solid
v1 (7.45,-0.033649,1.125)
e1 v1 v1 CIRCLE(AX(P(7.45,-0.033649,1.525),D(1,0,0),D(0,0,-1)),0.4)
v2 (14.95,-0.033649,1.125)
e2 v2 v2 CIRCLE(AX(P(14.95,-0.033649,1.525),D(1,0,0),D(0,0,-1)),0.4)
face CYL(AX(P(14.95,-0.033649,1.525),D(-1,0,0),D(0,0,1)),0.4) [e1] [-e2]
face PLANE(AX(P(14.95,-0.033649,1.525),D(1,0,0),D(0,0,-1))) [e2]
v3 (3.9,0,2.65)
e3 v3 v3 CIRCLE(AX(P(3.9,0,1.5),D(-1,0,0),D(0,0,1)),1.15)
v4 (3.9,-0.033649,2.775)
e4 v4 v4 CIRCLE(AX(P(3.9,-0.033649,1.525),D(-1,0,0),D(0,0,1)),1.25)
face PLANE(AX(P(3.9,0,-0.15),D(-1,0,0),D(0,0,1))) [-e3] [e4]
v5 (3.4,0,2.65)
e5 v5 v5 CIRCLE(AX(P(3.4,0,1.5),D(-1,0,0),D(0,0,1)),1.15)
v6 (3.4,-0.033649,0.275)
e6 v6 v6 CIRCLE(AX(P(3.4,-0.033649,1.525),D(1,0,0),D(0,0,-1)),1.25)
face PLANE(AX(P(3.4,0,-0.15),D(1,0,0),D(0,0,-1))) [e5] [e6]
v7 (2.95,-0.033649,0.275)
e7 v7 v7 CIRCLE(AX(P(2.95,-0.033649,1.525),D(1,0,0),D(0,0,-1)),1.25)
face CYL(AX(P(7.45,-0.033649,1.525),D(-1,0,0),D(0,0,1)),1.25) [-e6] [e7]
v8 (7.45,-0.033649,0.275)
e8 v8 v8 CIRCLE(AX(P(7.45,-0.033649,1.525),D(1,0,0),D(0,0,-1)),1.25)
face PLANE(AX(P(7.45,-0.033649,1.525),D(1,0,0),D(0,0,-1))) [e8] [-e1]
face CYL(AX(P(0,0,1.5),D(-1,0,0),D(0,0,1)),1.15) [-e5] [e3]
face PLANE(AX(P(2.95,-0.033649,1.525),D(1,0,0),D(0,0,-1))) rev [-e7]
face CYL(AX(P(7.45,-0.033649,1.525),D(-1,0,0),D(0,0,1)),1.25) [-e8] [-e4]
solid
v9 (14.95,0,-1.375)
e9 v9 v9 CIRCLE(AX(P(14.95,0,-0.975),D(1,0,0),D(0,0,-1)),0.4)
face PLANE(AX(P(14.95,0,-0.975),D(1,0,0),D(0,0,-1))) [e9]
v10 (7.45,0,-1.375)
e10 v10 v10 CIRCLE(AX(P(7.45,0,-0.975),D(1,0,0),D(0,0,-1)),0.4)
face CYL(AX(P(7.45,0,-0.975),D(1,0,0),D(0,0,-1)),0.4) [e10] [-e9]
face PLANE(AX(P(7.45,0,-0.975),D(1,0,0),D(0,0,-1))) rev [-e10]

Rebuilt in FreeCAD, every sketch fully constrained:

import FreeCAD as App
import Part
import Sketcher

V = App.Vector


def add_polygon(sketch, points):
    """Adds a closed chain of lines whose ends are joined by coincident constraints."""
    first, n = sketch.GeometryCount, len(points)
    for a, b in zip(points, points[1:] + points[:1]):
        sketch.addGeometry(Part.LineSegment(App.Vector(*a, 0), App.Vector(*b, 0)), False)
    for i in range(n):
        sketch.addConstraint(Sketcher.Constraint("Coincident", first + i, 2, first + (i + 1) % n, 1))

doc = App.newDocument("Part")
body = doc.addObject("PartDesign::Body", "Body")

# Sketch on YZ plane
sketch1 = body.newObject("Sketcher::SketchObject", "Sketch")
sketch1.AttachmentSupport = (doc.getObject("YZ_Plane"), [""])
sketch1.MapMode = "FlatFace"
sketch1.AttachmentOffset = App.Placement(V(0, 0, 2.95), App.Rotation())
sketch1.addGeometry(Part.Circle(V(0, 1.5, 0), V(0, 0, 1), 1.2), False)
sketch1.addConstraint(Sketcher.Constraint("Diameter", 0, 2.5))
sketch1.addConstraint(Sketcher.Constraint("DistanceY", -1, 1, 0, 3, 1.525))
sketch1.addConstraint(Sketcher.Constraint("DistanceX", 0, 3, -1, 1, 0.033649))
pad1 = body.newObject("PartDesign::Pad", "Pad")
pad1.Profile = sketch1
pad1.Length = 4.5

# Sketch on XZ plane
sketch2 = body.newObject("Sketcher::SketchObject", "Sketch001")
sketch2.AttachmentSupport = (doc.getObject("XZ_Plane"), [""])
sketch2.MapMode = "FlatFace"
add_polygon(sketch2, [(3.4, -0.1), (3.4, 0.3), (3.9, 0.3), (3.9, -0.1)])  # lines 0-3
sketch2.addGeometry(Part.LineSegment(V(3.4, 1.5, 0), V(3.9, 1.5, 0)), True)  # axis
sketch2.addConstraint(Sketcher.Constraint("Vertical", 0))
sketch2.addConstraint(Sketcher.Constraint("Horizontal", 1))
sketch2.addConstraint(Sketcher.Constraint("Vertical", 2))
sketch2.addConstraint(Sketcher.Constraint("Horizontal", 3))
sketch2.addConstraint(Sketcher.Constraint("Horizontal", 4))
sketch2.addConstraint(Sketcher.Constraint("Vertical", 3, 2, 4, 1))
sketch2.addConstraint(Sketcher.Constraint("Vertical", 2, 2, 4, 2))
sketch2.addConstraint(Sketcher.Constraint("Equal", 4, 0))
sketch2.addConstraint(Sketcher.Constraint("DistanceX", 1, 1, 1, 2, 0.5))
sketch2.addConstraint(Sketcher.Constraint("DistanceX", -1, 1, 0, 2, 3.4))
sketch2.addConstraint(Sketcher.Constraint("DistanceY", -1, 1, 4, 1, 1.5))
sketch2.addConstraint(Sketcher.Constraint("DistanceY", -1, 1, 0, 2, 0.35))
groove = body.newObject("PartDesign::Groove", "Groove")
groove.Profile = sketch2
groove.ReferenceAxis = (sketch2, ["Axis0"])
groove.Angle = 360

# Sketch on YZ plane
sketch3 = body.newObject("Sketcher::SketchObject", "Sketch002")
sketch3.AttachmentSupport = (doc.getObject("YZ_Plane"), [""])
sketch3.MapMode = "FlatFace"
sketch3.AttachmentOffset = App.Placement(V(0, 0, 7.45), App.Rotation())
sketch3.addGeometry(Part.Circle(V(-0.03, 1.52, 0), V(0, 0, 1), 0.4), False)
sketch3.addConstraint(Sketcher.Constraint("Diameter", 0, 0.8))
sketch3.addConstraint(Sketcher.Constraint("DistanceY", -1, 1, 0, 3, 1.525))
sketch3.addConstraint(Sketcher.Constraint("DistanceX", 0, 3, -1, 1, 0.033649))
pad2 = body.newObject("PartDesign::Pad", "Pad001")
pad2.Profile = sketch3
pad2.Length = 7.5
body2 = doc.addObject("PartDesign::Body", "Body001")

# Sketch on YZ plane
sketch4 = body2.newObject("Sketcher::SketchObject", "Sketch003")
sketch4.AttachmentSupport = (doc.getObject("YZ_Plane001"), [""])
sketch4.MapMode = "FlatFace"
sketch4.AttachmentOffset = App.Placement(V(0, 0, 14.95), App.Rotation())
sketch4.addGeometry(Part.Circle(V(0, -0.97, 0), V(0, 0, 1), 0.4), False)
sketch4.addConstraint(Sketcher.Constraint("PointOnObject", 0, 3, -2))
sketch4.addConstraint(Sketcher.Constraint("Diameter", 0, 0.8))
sketch4.addConstraint(Sketcher.Constraint("DistanceY", 0, 3, -1, 1, 0.975))
pad3 = body2.newObject("PartDesign::Pad", "Pad002")
pad3.Profile = sketch4
pad3.Length = 7.5
pad3.Reversed = True

doc.recompute()
